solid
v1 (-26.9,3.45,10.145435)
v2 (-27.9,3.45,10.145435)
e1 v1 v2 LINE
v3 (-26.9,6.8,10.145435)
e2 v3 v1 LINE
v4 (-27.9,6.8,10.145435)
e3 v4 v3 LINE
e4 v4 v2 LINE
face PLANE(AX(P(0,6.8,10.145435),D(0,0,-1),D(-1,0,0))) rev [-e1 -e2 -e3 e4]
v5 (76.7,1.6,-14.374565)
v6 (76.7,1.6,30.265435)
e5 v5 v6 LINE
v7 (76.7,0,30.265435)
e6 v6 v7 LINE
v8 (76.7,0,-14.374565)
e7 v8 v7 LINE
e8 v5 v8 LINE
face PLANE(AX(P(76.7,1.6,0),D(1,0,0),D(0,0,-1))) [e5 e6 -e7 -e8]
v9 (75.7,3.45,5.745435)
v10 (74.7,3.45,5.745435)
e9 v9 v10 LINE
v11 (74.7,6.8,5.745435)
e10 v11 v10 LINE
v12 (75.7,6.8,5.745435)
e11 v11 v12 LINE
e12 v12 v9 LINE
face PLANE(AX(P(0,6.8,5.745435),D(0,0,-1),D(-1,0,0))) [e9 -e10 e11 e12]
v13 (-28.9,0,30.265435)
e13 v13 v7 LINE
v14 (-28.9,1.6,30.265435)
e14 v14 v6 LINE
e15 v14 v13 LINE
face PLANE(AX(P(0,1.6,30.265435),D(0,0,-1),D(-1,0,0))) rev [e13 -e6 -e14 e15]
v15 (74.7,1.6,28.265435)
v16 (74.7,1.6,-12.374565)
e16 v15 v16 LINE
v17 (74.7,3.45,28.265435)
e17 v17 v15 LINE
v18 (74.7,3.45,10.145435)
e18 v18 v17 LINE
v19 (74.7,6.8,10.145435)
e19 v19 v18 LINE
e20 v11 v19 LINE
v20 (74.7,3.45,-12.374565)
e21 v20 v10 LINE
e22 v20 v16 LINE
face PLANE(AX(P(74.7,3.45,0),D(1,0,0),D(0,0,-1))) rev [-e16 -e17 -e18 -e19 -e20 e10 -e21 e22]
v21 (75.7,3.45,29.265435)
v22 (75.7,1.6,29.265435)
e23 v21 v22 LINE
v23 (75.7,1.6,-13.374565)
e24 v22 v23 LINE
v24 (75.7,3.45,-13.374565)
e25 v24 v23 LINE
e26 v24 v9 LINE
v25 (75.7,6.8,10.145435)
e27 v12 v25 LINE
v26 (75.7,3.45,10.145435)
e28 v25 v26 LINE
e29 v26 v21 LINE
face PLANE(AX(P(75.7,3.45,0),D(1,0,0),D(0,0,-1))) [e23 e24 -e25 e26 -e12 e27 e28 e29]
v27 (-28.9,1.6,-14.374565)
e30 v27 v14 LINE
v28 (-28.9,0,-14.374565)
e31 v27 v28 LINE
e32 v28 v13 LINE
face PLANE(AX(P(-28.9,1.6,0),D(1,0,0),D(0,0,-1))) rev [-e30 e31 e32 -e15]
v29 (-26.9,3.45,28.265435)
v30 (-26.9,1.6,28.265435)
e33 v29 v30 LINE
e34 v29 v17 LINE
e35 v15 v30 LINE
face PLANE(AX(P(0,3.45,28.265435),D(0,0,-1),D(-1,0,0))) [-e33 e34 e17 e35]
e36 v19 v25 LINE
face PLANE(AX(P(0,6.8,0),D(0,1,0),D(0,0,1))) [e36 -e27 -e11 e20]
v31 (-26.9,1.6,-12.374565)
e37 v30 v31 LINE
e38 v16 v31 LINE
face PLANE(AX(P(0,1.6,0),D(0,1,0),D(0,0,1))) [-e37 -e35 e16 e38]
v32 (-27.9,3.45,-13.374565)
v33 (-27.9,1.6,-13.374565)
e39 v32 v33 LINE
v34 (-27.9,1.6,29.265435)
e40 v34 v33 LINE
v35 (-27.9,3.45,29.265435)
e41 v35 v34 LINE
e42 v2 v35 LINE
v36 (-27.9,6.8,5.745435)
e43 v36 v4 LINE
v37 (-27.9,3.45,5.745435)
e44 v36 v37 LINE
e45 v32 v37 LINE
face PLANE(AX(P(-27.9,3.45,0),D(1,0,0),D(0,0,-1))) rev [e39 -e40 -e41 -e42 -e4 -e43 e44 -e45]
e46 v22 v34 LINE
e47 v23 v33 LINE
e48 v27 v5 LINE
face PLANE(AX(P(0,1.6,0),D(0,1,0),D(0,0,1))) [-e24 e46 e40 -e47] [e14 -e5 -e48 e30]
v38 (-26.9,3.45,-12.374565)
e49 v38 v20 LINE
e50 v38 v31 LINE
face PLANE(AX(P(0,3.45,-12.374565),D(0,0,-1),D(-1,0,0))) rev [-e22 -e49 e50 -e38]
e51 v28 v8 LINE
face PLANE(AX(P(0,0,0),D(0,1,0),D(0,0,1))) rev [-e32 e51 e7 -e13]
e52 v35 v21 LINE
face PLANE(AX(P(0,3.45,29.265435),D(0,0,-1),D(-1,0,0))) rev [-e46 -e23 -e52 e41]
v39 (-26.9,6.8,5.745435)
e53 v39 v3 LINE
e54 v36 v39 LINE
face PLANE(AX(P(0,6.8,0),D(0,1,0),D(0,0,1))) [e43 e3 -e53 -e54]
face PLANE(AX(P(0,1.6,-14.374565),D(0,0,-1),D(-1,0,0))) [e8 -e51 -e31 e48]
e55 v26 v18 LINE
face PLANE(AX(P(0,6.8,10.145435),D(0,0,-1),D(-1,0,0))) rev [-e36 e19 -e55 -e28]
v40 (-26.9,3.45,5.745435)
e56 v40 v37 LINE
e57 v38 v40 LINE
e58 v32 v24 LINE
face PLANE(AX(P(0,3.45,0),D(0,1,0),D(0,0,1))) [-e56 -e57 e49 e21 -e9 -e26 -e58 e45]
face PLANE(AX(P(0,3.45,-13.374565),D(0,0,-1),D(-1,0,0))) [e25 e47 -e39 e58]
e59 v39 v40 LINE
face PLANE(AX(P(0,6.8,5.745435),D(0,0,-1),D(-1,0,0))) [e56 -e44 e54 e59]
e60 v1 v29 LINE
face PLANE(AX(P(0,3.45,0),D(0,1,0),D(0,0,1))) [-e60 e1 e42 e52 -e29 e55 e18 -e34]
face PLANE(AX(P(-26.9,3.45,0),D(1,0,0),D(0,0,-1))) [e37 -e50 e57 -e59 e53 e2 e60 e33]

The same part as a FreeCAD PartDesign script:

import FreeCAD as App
import Part
import Sketcher

V = App.Vector


def add_polygon(sketch, points):
    """Adds a closed chain of lines whose ends are joined by coincident constraints."""
    first, n = sketch.GeometryCount, len(points)
    for a, b in zip(points, points[1:] + points[:1]):
        sketch.addGeometry(Part.LineSegment(App.Vector(*a, 0), App.Vector(*b, 0)), False)
    for i in range(n):
        sketch.addConstraint(Sketcher.Constraint("Coincident", first + i, 2, first + (i + 1) % n, 1))

doc = App.newDocument("Part")
body = doc.addObject("PartDesign::Body", "Body")

sketch1 = body.newObject("Sketcher::SketchObject", "Sketch")
sketch1.AttachmentSupport = (doc.getObject("XZ_Plane"), [""])
sketch1.MapMode = "FlatFace"
add_polygon(sketch1, [(-28.9, -14.374565), (-28.9, 30.265435), (76.7, 30.265435), (76.7, -14.374565)])
sketch1.addConstraint([
    Sketcher.Constraint("Vertical", 0),
    Sketcher.Constraint("Horizontal", 1),
    Sketcher.Constraint("Vertical", 2),
    Sketcher.Constraint("Horizontal", 3),
    Sketcher.Constraint("DistanceX", 1, 1, 1, 2, 105.6),
    Sketcher.Constraint("DistanceY", 0, 1, 0, 2, 44.64),
    Sketcher.Constraint("DistanceX", 0, 2, -1, 1, 28.9),
    Sketcher.Constraint("DistanceY", -1, 1, 0, 2, 30.265435),
])
pad1 = body.newObject("PartDesign::Pad", "Pad")
pad1.Profile = sketch1
pad1.Length = 1.6
pad1.Reversed = True

sketch2 = body.newObject("Sketcher::SketchObject", "Sketch001")
sketch2.AttachmentSupport = (doc.getObject("XZ_Plane"), [""])
sketch2.MapMode = "FlatFace"
add_polygon(sketch2, [(75.7, -13.374565), (-27.9, -13.374565), (-27.9, 29.265435), (75.7, 29.265435)])
add_polygon(sketch2, [(74.7, 28.265435), (-26.9, 28.265435), (-26.9, -12.374565), (74.7, -12.374565)])
sketch2.addConstraint([
    Sketcher.Constraint("Horizontal", 0),
    Sketcher.Constraint("Vertical", 1),
    Sketcher.Constraint("Horizontal", 2),
    Sketcher.Constraint("Vertical", 3),
    Sketcher.Constraint("Horizontal", 4),
    Sketcher.Constraint("Vertical", 5),
    Sketcher.Constraint("Horizontal", 6),
    Sketcher.Constraint("Vertical", 7),
    Sketcher.Constraint("DistanceX", 0, 2, 0, 1, 103.6),
    Sketcher.Constraint("DistanceX", 4, 2, 4, 1, 101.6),
    Sketcher.Constraint("DistanceX", 1, 2, 4, 2, 1.0),
    Sketcher.Constraint("DistanceY", 4, 2, 1, 2, 1.0),
    Sketcher.Constraint("DistanceY", 0, 2, 5, 2, 1.0),
    Sketcher.Constraint("DistanceY", 1, 1, 1, 2, 42.64),
    Sketcher.Constraint("DistanceX", 0, 2, -1, 1, 27.9),
    Sketcher.Constraint("DistanceY", 0, 2, -1, 1, 13.374565),
])
pad2 = body.newObject("PartDesign::Pad", "Pad001")
pad2.Profile = sketch2
pad2.Length = 3.45
pad2.Reversed = True

sketch3 = body.newObject("Sketcher::SketchObject", "Sketch002")
sketch3.AttachmentSupport = (doc.getObject("XZ_Plane"), [""])
sketch3.MapMode = "FlatFace"
add_polygon(sketch3, [(74.7, 5.745435), (74.7, 10.145435), (75.7, 10.145435), (75.7, 5.745435)])
add_polygon(sketch3, [(-27.9, 5.745435), (-27.9, 10.145435), (-26.9, 10.145435), (-26.9, 5.745435)])
sketch3.addConstraint([
    Sketcher.Constraint("Vertical", 0),
    Sketcher.Constraint("Horizontal", 1),
    Sketcher.Constraint("Vertical", 2),
    Sketcher.Constraint("Horizontal", 3),
    Sketcher.Constraint("Vertical", 4),
    Sketcher.Constraint("Horizontal", 5),
    Sketcher.Constraint("Vertical", 6),
    Sketcher.Constraint("Horizontal", 7),
    Sketcher.Constraint("Horizontal", 1, 2, 4, 2),
    Sketcher.Constraint("Horizontal", 3, 2, 6, 2),
    Sketcher.Constraint("Equal", 3, 5),
    Sketcher.Constraint("DistanceX", 1, 1, 1, 2, 1.0),
    Sketcher.Constraint("DistanceY", 0, 1, 0, 2, 4.4),
    Sketcher.Constraint("DistanceX", -1, 1, 0, 2, 74.7),
    Sketcher.Constraint("DistanceX", 4, 2, -1, 1, 27.9),
    Sketcher.Constraint("DistanceY", -1, 1, 0, 2, 10.145435),
])
pad3 = body.newObject("PartDesign::Pad", "Pad002")
pad3.Profile = sketch3
pad3.Length = 6.8
pad3.Reversed = True

doc.recompute()
